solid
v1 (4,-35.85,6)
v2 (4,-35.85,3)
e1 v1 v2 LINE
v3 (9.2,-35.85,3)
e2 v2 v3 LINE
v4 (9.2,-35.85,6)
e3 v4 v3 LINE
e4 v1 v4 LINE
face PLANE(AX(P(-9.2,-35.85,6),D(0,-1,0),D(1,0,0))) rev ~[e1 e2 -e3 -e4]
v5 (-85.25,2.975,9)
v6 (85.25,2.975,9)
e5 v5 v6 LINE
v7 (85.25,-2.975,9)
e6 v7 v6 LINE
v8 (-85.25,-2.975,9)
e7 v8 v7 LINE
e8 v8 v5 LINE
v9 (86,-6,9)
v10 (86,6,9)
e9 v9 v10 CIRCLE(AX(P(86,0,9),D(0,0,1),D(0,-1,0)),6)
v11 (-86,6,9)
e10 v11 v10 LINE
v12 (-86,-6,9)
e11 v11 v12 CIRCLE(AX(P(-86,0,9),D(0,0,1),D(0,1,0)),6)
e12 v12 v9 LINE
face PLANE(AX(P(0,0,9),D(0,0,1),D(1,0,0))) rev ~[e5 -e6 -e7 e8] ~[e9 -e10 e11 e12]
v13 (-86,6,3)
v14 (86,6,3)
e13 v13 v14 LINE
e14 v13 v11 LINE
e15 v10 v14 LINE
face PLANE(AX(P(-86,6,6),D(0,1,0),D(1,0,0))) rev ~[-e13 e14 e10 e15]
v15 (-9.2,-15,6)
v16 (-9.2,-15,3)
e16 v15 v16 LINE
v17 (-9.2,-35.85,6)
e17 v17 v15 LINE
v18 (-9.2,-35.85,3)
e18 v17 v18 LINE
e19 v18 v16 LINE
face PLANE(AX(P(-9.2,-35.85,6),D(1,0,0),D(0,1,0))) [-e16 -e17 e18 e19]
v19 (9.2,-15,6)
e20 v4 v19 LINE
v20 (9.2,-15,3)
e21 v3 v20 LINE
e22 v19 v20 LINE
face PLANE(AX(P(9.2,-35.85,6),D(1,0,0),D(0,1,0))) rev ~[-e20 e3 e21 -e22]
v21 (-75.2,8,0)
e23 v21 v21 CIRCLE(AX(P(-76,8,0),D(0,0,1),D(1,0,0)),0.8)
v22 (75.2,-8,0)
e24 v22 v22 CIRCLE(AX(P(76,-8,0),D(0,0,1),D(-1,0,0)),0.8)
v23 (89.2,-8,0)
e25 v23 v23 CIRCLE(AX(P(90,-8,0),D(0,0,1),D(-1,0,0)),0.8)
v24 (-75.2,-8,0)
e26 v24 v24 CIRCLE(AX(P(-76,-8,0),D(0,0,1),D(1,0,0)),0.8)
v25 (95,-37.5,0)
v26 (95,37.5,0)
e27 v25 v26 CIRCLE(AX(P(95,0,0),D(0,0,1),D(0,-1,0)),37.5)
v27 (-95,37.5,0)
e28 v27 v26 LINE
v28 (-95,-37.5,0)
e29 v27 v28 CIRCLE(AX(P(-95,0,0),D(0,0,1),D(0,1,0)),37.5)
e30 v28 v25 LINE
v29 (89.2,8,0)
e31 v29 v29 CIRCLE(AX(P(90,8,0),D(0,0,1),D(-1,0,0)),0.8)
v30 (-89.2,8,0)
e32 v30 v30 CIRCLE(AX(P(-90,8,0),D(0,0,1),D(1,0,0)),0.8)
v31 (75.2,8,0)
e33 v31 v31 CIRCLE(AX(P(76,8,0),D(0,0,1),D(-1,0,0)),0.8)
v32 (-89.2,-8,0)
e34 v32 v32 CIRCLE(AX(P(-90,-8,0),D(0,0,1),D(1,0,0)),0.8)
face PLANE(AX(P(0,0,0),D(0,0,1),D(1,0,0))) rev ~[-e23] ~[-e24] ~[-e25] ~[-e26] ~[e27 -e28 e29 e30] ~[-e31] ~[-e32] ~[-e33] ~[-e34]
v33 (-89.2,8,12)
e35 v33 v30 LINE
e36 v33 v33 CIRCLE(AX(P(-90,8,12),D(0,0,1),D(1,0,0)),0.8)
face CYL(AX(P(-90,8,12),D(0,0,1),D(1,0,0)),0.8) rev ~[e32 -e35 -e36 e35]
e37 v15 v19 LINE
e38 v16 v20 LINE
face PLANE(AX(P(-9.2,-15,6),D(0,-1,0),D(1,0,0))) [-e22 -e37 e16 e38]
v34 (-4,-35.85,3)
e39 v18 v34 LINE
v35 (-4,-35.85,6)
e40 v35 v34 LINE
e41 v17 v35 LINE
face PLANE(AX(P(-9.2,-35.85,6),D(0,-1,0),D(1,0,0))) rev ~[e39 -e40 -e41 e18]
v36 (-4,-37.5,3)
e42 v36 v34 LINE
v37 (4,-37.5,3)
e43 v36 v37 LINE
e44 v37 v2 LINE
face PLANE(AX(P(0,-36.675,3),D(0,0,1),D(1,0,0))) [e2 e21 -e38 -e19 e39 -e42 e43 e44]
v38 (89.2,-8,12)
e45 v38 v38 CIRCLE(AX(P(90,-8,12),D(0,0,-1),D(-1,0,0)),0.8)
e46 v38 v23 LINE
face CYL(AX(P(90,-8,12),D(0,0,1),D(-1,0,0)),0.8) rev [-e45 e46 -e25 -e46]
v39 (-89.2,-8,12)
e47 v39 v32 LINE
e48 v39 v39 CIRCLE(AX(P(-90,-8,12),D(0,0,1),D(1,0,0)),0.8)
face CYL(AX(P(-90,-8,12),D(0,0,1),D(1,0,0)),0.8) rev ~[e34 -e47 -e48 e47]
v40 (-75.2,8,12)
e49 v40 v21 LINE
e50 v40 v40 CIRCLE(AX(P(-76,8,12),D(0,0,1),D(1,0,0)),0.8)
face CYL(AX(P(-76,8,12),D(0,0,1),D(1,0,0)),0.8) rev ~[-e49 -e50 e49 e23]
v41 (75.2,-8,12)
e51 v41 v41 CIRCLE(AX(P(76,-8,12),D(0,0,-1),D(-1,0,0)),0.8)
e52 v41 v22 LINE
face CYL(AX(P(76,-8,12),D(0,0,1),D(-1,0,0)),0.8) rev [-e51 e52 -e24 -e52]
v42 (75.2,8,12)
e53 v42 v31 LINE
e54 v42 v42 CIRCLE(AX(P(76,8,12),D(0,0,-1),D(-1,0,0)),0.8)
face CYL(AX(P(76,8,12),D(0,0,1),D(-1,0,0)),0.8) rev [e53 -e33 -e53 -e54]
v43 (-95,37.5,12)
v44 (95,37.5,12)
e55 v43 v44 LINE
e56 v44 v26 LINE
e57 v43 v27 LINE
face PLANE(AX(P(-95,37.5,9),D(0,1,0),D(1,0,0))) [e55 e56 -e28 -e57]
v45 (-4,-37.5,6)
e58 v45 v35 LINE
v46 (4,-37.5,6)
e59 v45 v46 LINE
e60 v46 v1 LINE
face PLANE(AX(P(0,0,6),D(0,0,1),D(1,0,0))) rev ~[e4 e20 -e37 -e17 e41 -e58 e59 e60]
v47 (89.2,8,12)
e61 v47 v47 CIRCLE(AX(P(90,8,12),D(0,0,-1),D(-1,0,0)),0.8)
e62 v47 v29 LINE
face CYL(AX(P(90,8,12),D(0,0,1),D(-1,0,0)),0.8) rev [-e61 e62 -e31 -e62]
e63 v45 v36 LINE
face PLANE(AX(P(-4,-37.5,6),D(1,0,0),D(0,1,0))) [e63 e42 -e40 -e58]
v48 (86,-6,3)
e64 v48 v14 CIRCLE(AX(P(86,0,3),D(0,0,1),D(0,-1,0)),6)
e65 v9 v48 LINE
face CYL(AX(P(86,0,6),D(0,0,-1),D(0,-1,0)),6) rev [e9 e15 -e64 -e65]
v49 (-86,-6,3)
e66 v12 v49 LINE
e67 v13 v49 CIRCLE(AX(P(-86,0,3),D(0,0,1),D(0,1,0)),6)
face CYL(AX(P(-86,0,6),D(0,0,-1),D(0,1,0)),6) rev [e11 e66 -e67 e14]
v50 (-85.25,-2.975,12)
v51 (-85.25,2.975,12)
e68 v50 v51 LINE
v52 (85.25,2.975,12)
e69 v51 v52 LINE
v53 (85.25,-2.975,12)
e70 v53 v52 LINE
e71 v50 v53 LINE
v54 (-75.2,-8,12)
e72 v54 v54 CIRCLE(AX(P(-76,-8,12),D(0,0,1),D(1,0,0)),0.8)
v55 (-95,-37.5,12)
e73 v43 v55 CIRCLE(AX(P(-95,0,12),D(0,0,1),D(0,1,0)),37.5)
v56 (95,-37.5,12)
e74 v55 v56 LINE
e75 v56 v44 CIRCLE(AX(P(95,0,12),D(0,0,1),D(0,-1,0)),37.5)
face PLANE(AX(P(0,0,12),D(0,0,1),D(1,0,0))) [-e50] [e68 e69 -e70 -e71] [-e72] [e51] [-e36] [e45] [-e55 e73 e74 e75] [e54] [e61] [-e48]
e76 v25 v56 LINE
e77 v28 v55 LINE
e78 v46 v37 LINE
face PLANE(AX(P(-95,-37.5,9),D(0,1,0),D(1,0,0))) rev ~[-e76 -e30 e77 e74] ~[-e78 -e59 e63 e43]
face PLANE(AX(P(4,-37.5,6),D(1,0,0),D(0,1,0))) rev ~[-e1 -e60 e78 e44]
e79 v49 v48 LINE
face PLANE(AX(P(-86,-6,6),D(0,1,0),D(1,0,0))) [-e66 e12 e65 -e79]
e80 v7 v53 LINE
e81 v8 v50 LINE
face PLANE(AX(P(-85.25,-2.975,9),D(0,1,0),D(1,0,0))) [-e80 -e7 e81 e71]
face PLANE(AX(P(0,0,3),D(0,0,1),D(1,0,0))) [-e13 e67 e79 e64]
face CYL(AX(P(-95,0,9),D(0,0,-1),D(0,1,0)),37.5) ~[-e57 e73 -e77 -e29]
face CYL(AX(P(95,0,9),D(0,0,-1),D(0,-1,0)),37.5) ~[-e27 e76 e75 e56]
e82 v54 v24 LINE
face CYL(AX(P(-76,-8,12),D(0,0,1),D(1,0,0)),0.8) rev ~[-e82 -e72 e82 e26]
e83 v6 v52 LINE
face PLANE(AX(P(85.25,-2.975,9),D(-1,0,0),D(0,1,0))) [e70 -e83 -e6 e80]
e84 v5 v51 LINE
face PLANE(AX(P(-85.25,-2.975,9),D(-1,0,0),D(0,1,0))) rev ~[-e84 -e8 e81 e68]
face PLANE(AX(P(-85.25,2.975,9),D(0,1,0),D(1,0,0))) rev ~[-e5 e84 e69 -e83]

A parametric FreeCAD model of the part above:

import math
import FreeCAD as App
import Part
import Sketcher

V = App.Vector


def add_polygon(sketch, points):
    """Adds a closed chain of lines whose ends are joined by coincident constraints."""
    first, n = sketch.GeometryCount, len(points)
    for a, b in zip(points, points[1:] + points[:1]):
        sketch.addGeometry(Part.LineSegment(App.Vector(*a, 0), App.Vector(*b, 0)), False)
    for i in range(n):
        sketch.addConstraint(Sketcher.Constraint("Coincident", first + i, 2, first + (i + 1) % n, 1))

doc = App.newDocument("Part")
params = doc.addObject("Spreadsheet::Sheet", "Params")
for row, (alias, value) in enumerate([
    ("sketch1_radius", "37.5 mm"),
    ("sketch1_width", "190 mm"),
    ("pad1_length", "6 mm"),
    ("sketch2_radius", "6 mm"),
    ("sketch2_width", "172 mm"),
    ("pocket1_length", "3 mm"),
    ("sketch3_width", "18.4 mm"),
    ("sketch3_height", "20.85 mm"),
    ("pocket2_length", "3 mm"),
    ("sketch4_width", "8 mm"),
    ("sketch4_height", "1.65 mm"),
    ("pocket3_length", "3 mm"),
    ("sketch5_radius", "6 mm"),
    ("sketch5_radius2", "37.5 mm"),
    ("sketch5_width", "190 mm"),
    ("sketch5_width2", "172 mm"),
    ("pad2_length", "3 mm"),
    ("sketch6_radius", "37.5 mm"),
    ("sketch6_width", "190 mm"),
    ("sketch6_width2", "170.5 mm"),
    ("sketch6_height", "5.95 mm"),
    ("pad3_length", "3 mm"),
    ("sketch7_diameter", "1.6 mm"),
], start=1):
    params.set(f"A{row}", alias)
    params.set(f"B{row}", "=" + value)
    params.setAlias(f"B{row}", alias)

body = doc.addObject("PartDesign::Body", "Body")

# Sketch on XY plane
sketch1 = doc.addObject("Sketcher::SketchObject", "Sketch")
body.addObject(sketch1)
sketch1.AttachmentSupport = (doc.XY_Plane, [""])
sketch1.MapMode = "FlatFace"
sketch1.addGeometry(Part.ArcOfCircle(Part.Circle(V(-95, 0, 0), V(0, 0, 1), 38), math.radians(90), math.radians(270)), False)
sketch1.addGeometry(Part.LineSegment(V(-95, -38, 0), V(95, -38, 0)), False)
sketch1.addGeometry(Part.ArcOfCircle(Part.Circle(V(95, 0, 0), V(0, 0, 1), 38), math.radians(-90), math.radians(90)), False)
sketch1.addGeometry(Part.LineSegment(V(95, 38, 0), V(-95, 38, 0)), False)
sketch1.addConstraint(Sketcher.Constraint("Tangent", 0, 2, 1, 1))
sketch1.addConstraint(Sketcher.Constraint("Tangent", 1, 2, 2, 1))
sketch1.addConstraint(Sketcher.Constraint("Tangent", 2, 2, 3, 1))
sketch1.addConstraint(Sketcher.Constraint("Tangent", 3, 2, 0, 1))
sketch1.addConstraint(Sketcher.Constraint("Horizontal", 1))
sketch1.addConstraint(Sketcher.Constraint("Horizontal", 3))
sketch1.addConstraint(Sketcher.Constraint("Symmetric", 0, 3, 2, 3, -1, 1))
sketch1.addConstraint(Sketcher.Constraint("Radius", 0, 37.5))
sketch1.addConstraint(Sketcher.Constraint("DistanceX", 1, 1, 1, 2, 190.0))
sketch1.setExpression("Constraints[7]", "Params.sketch1_radius")
sketch1.setExpression("Constraints[8]", "Params.sketch1_width")
pad1 = doc.addObject("PartDesign::Pad", "Pad")
body.addObject(pad1)
pad1.Profile = sketch1
pad1.setExpression("Length", "Params.pad1_length")

# Sketch on XY plane
sketch2 = doc.addObject("Sketcher::SketchObject", "Sketch001")
body.addObject(sketch2)
sketch2.AttachmentSupport = (doc.XY_Plane, [""])
sketch2.MapMode = "FlatFace"
sketch2.AttachmentOffset = App.Placement(V(0, 0, 6), App.Rotation())
sketch2.addGeometry(Part.ArcOfCircle(Part.Circle(V(-86, 0, 0), V(0, 0, 1), 6), math.radians(90), math.radians(270)), False)
sketch2.addGeometry(Part.LineSegment(V(-86, -6, 0), V(86, -6, 0)), False)
sketch2.addGeometry(Part.ArcOfCircle(Part.Circle(V(86, 0, 0), V(0, 0, 1), 6), math.radians(-90), math.radians(90)), False)
sketch2.addGeometry(Part.LineSegment(V(86, 6, 0), V(-86, 6, 0)), False)
sketch2.addConstraint(Sketcher.Constraint("Tangent", 0, 2, 1, 1))
sketch2.addConstraint(Sketcher.Constraint("Tangent", 1, 2, 2, 1))
sketch2.addConstraint(Sketcher.Constraint("Tangent", 2, 2, 3, 1))
sketch2.addConstraint(Sketcher.Constraint("Tangent", 3, 2, 0, 1))
sketch2.addConstraint(Sketcher.Constraint("Horizontal", 1))
sketch2.addConstraint(Sketcher.Constraint("Horizontal", 3))
sketch2.addConstraint(Sketcher.Constraint("Symmetric", 0, 3, 2, 3, -1, 1))
sketch2.addConstraint(Sketcher.Constraint("Radius", 0, 6.0))
sketch2.addConstraint(Sketcher.Constraint("DistanceX", 1, 1, 1, 2, 172.0))
sketch2.setExpression("Constraints[7]", "Params.sketch2_radius")
sketch2.setExpression("Constraints[8]", "Params.sketch2_width")
pocket1 = doc.addObject("PartDesign::Pocket", "Pocket")
body.addObject(pocket1)
pocket1.Profile = sketch2
pocket1.setExpression("Length", "Params.pocket1_length")

# Sketch on XY plane
sketch3 = doc.addObject("Sketcher::SketchObject", "Sketch002")
body.addObject(sketch3)
sketch3.AttachmentSupport = (doc.XY_Plane, [""])
sketch3.MapMode = "FlatFace"
sketch3.AttachmentOffset = App.Placement(V(0, 0, 6), App.Rotation())
add_polygon(sketch3, [(-9, -15), (-9, -36), (9, -36), (9, -15)])  # lines 0-3
sketch3.addConstraint(Sketcher.Constraint("Vertical", 0))
sketch3.addConstraint(Sketcher.Constraint("Horizontal", 1))
sketch3.addConstraint(Sketcher.Constraint("Vertical", 2))
sketch3.addConstraint(Sketcher.Constraint("Horizontal", 3))
sketch3.addConstraint(Sketcher.Constraint("DistanceX", 1, 1, 1, 2, 18.4))
sketch3.addConstraint(Sketcher.Constraint("DistanceY", 2, 2, -1, 1, 15.0))
sketch3.addConstraint(Sketcher.Constraint("DistanceY", 0, 2, 0, 1, 20.85))
sketch3.addConstraint(Sketcher.Constraint("DistanceX", 0, 2, -1, 1, 9.2))
sketch3.setExpression("Constraints[8]", "Params.sketch3_width")
sketch3.setExpression("Constraints[10]", "Params.sketch3_height")
pocket2 = doc.addObject("PartDesign::Pocket", "Pocket001")
body.addObject(pocket2)
pocket2.Profile = sketch3
pocket2.setExpression("Length", "Params.pocket2_length")

# Sketch on XY plane
sketch4 = doc.addObject("Sketcher::SketchObject", "Sketch003")
body.addObject(sketch4)
sketch4.AttachmentSupport = (doc.XY_Plane, [""])
sketch4.MapMode = "FlatFace"
sketch4.AttachmentOffset = App.Placement(V(0, 0, 6), App.Rotation())
add_polygon(sketch4, [(-4, -35.9), (-4, -37.5), (4, -37.5), (4, -35.9)])  # lines 0-3
sketch4.addConstraint(Sketcher.Constraint("Vertical", 0))
sketch4.addConstraint(Sketcher.Constraint("Horizontal", 1))
sketch4.addConstraint(Sketcher.Constraint("Vertical", 2))
sketch4.addConstraint(Sketcher.Constraint("Horizontal", 3))
sketch4.addConstraint(Sketcher.Constraint("DistanceX", 1, 1, 1, 2, 8.0))
sketch4.addConstraint(Sketcher.Constraint("DistanceX", 0, 2, -1, 1, 4.0))
sketch4.addConstraint(Sketcher.Constraint("DistanceY", 0, 2, 0, 1, 1.65))
sketch4.addConstraint(Sketcher.Constraint("DistanceY", 0, 2, -1, 1, 37.5))
sketch4.setExpression("Constraints[8]", "Params.sketch4_width")
sketch4.setExpression("Constraints[10]", "Params.sketch4_height")
pocket3 = doc.addObject("PartDesign::Pocket", "Pocket002")
body.addObject(pocket3)
pocket3.Profile = sketch4
pocket3.setExpression("Length", "Params.pocket3_length")

# Sketch on XY plane
sketch5 = doc.addObject("Sketcher::SketchObject", "Sketch004")
body.addObject(sketch5)
sketch5.AttachmentSupport = (doc.XY_Plane, [""])
sketch5.MapMode = "FlatFace"
sketch5.AttachmentOffset = App.Placement(V(0, 0, 6), App.Rotation())
sketch5.addGeometry(Part.ArcOfCircle(Part.Circle(V(-95, 0, 0), V(0, 0, 1), 38), math.radians(90), math.radians(270)), False)
sketch5.addGeometry(Part.LineSegment(V(-95, -38, 0), V(95, -38, 0)), False)
sketch5.addGeometry(Part.ArcOfCircle(Part.Circle(V(95, 0, 0), V(0, 0, 1), 38), math.radians(-90), math.radians(90)), False)
sketch5.addGeometry(Part.LineSegment(V(95, 38, 0), V(-95, 38, 0)), False)
sketch5.addGeometry(Part.ArcOfCircle(Part.Circle(V(-86, 0, 0), V(0, 0, 1), 6), math.radians(90), math.radians(270)), False)
sketch5.addGeometry(Part.LineSegment(V(-86, 6, 0), V(86, 6, 0)), False)
sketch5.addGeometry(Part.ArcOfCircle(Part.Circle(V(86, 0, 0), V(0, 0, 1), 6), math.radians(-90), math.radians(90)), False)
sketch5.addGeometry(Part.LineSegment(V(86, -6, 0), V(-86, -6, 0)), False)
sketch5.addConstraint(Sketcher.Constraint("Tangent", 0, 2, 1, 1))
sketch5.addConstraint(Sketcher.Constraint("Tangent", 1, 2, 2, 1))
sketch5.addConstraint(Sketcher.Constraint("Tangent", 2, 2, 3, 1))
sketch5.addConstraint(Sketcher.Constraint("Tangent", 3, 2, 0, 1))
sketch5.addConstraint(Sketcher.Constraint("Tangent", 4, 1, 5, 1))
sketch5.addConstraint(Sketcher.Constraint("Tangent", 5, 2, 6, 2))
sketch5.addConstraint(Sketcher.Constraint("Tangent", 6, 1, 7, 1))
sketch5.addConstraint(Sketcher.Constraint("Tangent", 7, 2, 4, 2))
sketch5.addConstraint(Sketcher.Constraint("Horizontal", 1))
sketch5.addConstraint(Sketcher.Constraint("Horizontal", 3))
sketch5.addConstraint(Sketcher.Constraint("Horizontal", 5))
sketch5.addConstraint(Sketcher.Constraint("Horizontal", 7))
sketch5.addConstraint(Sketcher.Constraint("Symmetric", 0, 3, 2, 3, -1, 1))
sketch5.addConstraint(Sketcher.Constraint("Symmetric", 4, 3, 6, 3, -1, 1))
sketch5.addConstraint(Sketcher.Constraint("Radius", 4, 6.0))
sketch5.addConstraint(Sketcher.Constraint("Radius", 0, 37.5))
sketch5.addConstraint(Sketcher.Constraint("DistanceX", 1, 1, 1, 2, 190.0))
sketch5.addConstraint(Sketcher.Constraint("DistanceX", 5, 1, 5, 2, 172.0))
sketch5.setExpression("Constraints[14]", "Params.sketch5_radius")
sketch5.setExpression("Constraints[15]", "Params.sketch5_radius2")
sketch5.setExpression("Constraints[16]", "Params.sketch5_width")
sketch5.setExpression("Constraints[17]", "Params.sketch5_width2")
pad2 = doc.addObject("PartDesign::Pad", "Pad001")
body.addObject(pad2)
pad2.Profile = sketch5
pad2.setExpression("Length", "Params.pad2_length")

# Sketch on XY plane
sketch6 = doc.addObject("Sketcher::SketchObject", "Sketch005")
body.addObject(sketch6)
sketch6.AttachmentSupport = (doc.XY_Plane, [""])
sketch6.MapMode = "FlatFace"
sketch6.AttachmentOffset = App.Placement(V(0, 0, 9), App.Rotation())
sketch6.addGeometry(Part.ArcOfCircle(Part.Circle(V(-95, 0, 0), V(0, 0, 1), 38), math.radians(90), math.radians(270)), False)  # 0
sketch6.addGeometry(Part.LineSegment(V(-95, -38, 0), V(95, -38, 0)), False)  # 1
sketch6.addGeometry(Part.ArcOfCircle(Part.Circle(V(95, 0, 0), V(0, 0, 1), 38), math.radians(-90), math.radians(90)), False)  # 2
sketch6.addGeometry(Part.LineSegment(V(95, 38, 0), V(-95, 38, 0)), False)  # 3
add_polygon(sketch6, [(85, -3), (-85, -3), (-85, 3), (85, 3)])  # lines 4-7
sketch6.addConstraint(Sketcher.Constraint("Tangent", 0, 2, 1, 1))
sketch6.addConstraint(Sketcher.Constraint("Tangent", 1, 2, 2, 1))
sketch6.addConstraint(Sketcher.Constraint("Tangent", 2, 2, 3, 1))
sketch6.addConstraint(Sketcher.Constraint("Tangent", 3, 2, 0, 1))
sketch6.addConstraint(Sketcher.Constraint("Horizontal", 1))
sketch6.addConstraint(Sketcher.Constraint("Horizontal", 3))
sketch6.addConstraint(Sketcher.Constraint("Horizontal", 4))
sketch6.addConstraint(Sketcher.Constraint("Vertical", 5))
sketch6.addConstraint(Sketcher.Constraint("Horizontal", 6))
sketch6.addConstraint(Sketcher.Constraint("Vertical", 7))
sketch6.addConstraint(Sketcher.Constraint("Symmetric", 0, 3, 2, 3, -1, 1))
sketch6.addConstraint(Sketcher.Constraint("Symmetric", 4, 2, 6, 2, -1, 1))
sketch6.addConstraint(Sketcher.Constraint("Radius", 0, 37.5))
sketch6.addConstraint(Sketcher.Constraint("DistanceX", 1, 1, 1, 2, 190.0))
sketch6.addConstraint(Sketcher.Constraint("DistanceX", 4, 2, 4, 1, 170.5))
sketch6.addConstraint(Sketcher.Constraint("DistanceY", 5, 1, 5, 2, 5.95))
sketch6.setExpression("Constraints[16]", "Params.sketch6_radius")
sketch6.setExpression("Constraints[17]", "Params.sketch6_width")
sketch6.setExpression("Constraints[18]", "Params.sketch6_width2")
sketch6.setExpression("Constraints[19]", "Params.sketch6_height")
pad3 = doc.addObject("PartDesign::Pad", "Pad002")
body.addObject(pad3)
pad3.Profile = sketch6
pad3.setExpression("Length", "Params.pad3_length")

# Sketch on XY plane
sketch7 = doc.addObject("Sketcher::SketchObject", "Sketch006")
body.addObject(sketch7)
sketch7.AttachmentSupport = (doc.XY_Plane, [""])
sketch7.MapMode = "FlatFace"
sketch7.AttachmentOffset = App.Placement(V(0, 0, 12), App.Rotation())
sketch7.addGeometry(Part.Circle(V(-90, -8, 0), V(0, 0, 1), 0.8), False)
sketch7.addGeometry(Part.Circle(V(-90, 8, 0), V(0, 0, 1), 0.8), False)
sketch7.addGeometry(Part.Circle(V(-76, 8, 0), V(0, 0, 1), 0.8), False)
sketch7.addGeometry(Part.Circle(V(-76, -8, 0), V(0, 0, 1), 0.8), False)
sketch7.addConstraint(Sketcher.Constraint("Equal", 0, 1))
sketch7.addConstraint(Sketcher.Constraint("Equal", 1, 2))
sketch7.addConstraint(Sketcher.Constraint("Equal", 2, 3))
sketch7.addConstraint(Sketcher.Constraint("Symmetric", 0, 3, 1, 3, -1))
sketch7.addConstraint(Sketcher.Constraint("Symmetric", 2, 3, 3, 3, -1))
sketch7.addConstraint(Sketcher.Constraint("Horizontal", 1, 3, 2, 3))
sketch7.addConstraint(Sketcher.Constraint("Diameter", 0, 1.6))
sketch7.addConstraint(Sketcher.Constraint("DistanceX", 0, 3, -1, 1, 90.0))
sketch7.addConstraint(Sketcher.Constraint("DistanceY", 0, 3, -1, 1, 8.0))
sketch7.addConstraint(Sketcher.Constraint("DistanceX", 2, 3, -1, 1, 76.0))
sketch7.setExpression("Constraints[6]", "Params.sketch7_diameter")
pocket4 = doc.addObject("PartDesign::Pocket", "Pocket003")
body.addObject(pocket4)
pocket4.Profile = sketch7
pocket4.Type = "ThroughAll"
doc.recompute()

mirrored = doc.addObject("PartDesign::Mirrored", "Mirrored")
body.addObject(mirrored)
mirrored.Originals = [pocket4]
mirrored.MirrorPlane = (doc.YZ_Plane, [""])
body.Tip = mirrored

doc.recompute()
